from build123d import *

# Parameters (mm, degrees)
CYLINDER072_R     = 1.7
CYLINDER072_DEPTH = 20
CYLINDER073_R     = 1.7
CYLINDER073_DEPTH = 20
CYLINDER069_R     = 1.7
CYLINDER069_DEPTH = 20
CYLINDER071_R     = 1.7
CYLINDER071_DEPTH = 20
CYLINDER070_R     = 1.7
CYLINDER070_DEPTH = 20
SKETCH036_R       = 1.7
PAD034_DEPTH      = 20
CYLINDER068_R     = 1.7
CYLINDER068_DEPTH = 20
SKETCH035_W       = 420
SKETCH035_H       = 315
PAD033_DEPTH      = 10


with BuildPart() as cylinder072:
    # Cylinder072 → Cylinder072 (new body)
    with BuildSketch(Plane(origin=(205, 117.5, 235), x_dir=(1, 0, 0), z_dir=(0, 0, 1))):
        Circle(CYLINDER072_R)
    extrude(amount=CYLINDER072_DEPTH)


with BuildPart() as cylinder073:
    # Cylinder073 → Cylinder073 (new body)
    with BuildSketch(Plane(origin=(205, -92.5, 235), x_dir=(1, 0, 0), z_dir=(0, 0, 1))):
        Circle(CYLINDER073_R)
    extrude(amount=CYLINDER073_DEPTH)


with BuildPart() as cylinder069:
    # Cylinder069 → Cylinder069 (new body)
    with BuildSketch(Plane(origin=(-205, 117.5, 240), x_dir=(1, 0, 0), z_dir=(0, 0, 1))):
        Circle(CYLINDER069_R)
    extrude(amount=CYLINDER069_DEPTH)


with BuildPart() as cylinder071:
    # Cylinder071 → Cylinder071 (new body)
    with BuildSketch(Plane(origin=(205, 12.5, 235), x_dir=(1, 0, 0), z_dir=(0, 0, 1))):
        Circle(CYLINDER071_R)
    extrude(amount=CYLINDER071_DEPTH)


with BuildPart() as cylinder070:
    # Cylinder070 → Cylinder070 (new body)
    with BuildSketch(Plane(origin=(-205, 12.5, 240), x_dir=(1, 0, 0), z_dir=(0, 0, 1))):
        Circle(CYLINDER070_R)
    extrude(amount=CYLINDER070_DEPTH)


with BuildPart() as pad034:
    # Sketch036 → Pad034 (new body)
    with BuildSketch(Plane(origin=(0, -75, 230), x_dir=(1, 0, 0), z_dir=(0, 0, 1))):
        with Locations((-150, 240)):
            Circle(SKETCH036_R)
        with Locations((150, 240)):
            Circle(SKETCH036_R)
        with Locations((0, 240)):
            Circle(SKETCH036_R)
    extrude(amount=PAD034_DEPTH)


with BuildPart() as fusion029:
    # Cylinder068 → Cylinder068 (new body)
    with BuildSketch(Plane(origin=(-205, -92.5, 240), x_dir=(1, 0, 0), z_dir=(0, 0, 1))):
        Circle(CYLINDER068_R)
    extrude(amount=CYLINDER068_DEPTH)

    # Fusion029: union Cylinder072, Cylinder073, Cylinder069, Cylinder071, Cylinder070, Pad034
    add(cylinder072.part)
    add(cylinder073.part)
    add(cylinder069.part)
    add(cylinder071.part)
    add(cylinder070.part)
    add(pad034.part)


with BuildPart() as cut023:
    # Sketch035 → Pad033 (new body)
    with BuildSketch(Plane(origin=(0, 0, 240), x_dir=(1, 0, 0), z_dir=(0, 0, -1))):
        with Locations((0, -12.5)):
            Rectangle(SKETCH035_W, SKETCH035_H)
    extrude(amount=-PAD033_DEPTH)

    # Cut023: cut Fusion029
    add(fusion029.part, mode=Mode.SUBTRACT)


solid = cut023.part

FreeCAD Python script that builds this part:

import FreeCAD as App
import Part
import Sketcher
from FreeCAD import Vector
Q = App.Units.Quantity

doc = App.newDocument("Part")
body = doc.addObject("PartDesign::Body", "Body")

# Sketch on XY plane
sketch1 = body.newObject("Sketcher::SketchObject", "Sketch")
sketch1.AttachmentSupport = (doc.getObject("XY_Plane"), [""])
sketch1.MapMode = "FlatFace"
sketch1.AttachmentOffset = App.Placement(Vector(0, 0, 235), App.Rotation())
sketch1.addGeometry(Part.Circle(Vector(205, 117.5, 0), Vector(0, 0, 1), 1.7), False)
sketch1.addConstraint([
    Sketcher.Constraint("Diameter", 0, Q("3.4 mm")),
    Sketcher.Constraint("DistanceX", -1, 1, 0, 3, Q("205 mm")),
    Sketcher.Constraint("DistanceY", -1, 1, 0, 3, Q("117.5 mm")),
])
pad1 = body.newObject("PartDesign::Pad", "Pad")
pad1.Profile = sketch1
pad1.Length = 20
body2 = doc.addObject("PartDesign::Body", "Body001")

# Sketch on XY plane
sketch2 = body2.newObject("Sketcher::SketchObject", "Sketch001")
sketch2.AttachmentSupport = (doc.getObject("XY_Plane001"), [""])
sketch2.MapMode = "FlatFace"
sketch2.AttachmentOffset = App.Placement(Vector(0, 0, 235), App.Rotation())
sketch2.addGeometry(Part.Circle(Vector(205, -92.5, 0), Vector(0, 0, 1), 1.7), False)
sketch2.addConstraint([
    Sketcher.Constraint("Diameter", 0, Q("3.4 mm")),
    Sketcher.Constraint("DistanceX", -1, 1, 0, 3, Q("205 mm")),
    Sketcher.Constraint("DistanceY", 0, 3, -1, 1, Q("92.5 mm")),
])
pad2 = body2.newObject("PartDesign::Pad", "Pad001")
pad2.Profile = sketch2
pad2.Length = 20
body3 = doc.addObject("PartDesign::Body", "Body002")

# Sketch on XY plane
sketch3 = body3.newObject("Sketcher::SketchObject", "Sketch002")
sketch3.AttachmentSupport = (doc.getObject("XY_Plane002"), [""])
sketch3.MapMode = "FlatFace"
sketch3.AttachmentOffset = App.Placement(Vector(0, 0, 240), App.Rotation())
sketch3.addGeometry(Part.Circle(Vector(-205, 117.5, 0), Vector(0, 0, 1), 1.7), False)
sketch3.addConstraint([
    Sketcher.Constraint("Diameter", 0, Q("3.4 mm")),
    Sketcher.Constraint("DistanceX", 0, 3, -1, 1, Q("205 mm")),
    Sketcher.Constraint("DistanceY", -1, 1, 0, 3, Q("117.5 mm")),
])
pad3 = body3.newObject("PartDesign::Pad", "Pad002")
pad3.Profile = sketch3
pad3.Length = 20
body4 = doc.addObject("PartDesign::Body", "Body003")

# Sketch on XY plane
sketch4 = body4.newObject("Sketcher::SketchObject", "Sketch003")
sketch4.AttachmentSupport = (doc.getObject("XY_Plane003"), [""])
sketch4.MapMode = "FlatFace"
sketch4.AttachmentOffset = App.Placement(Vector(0, 0, 235), App.Rotation())
sketch4.addGeometry(Part.Circle(Vector(205, 12.5, 0), Vector(0, 0, 1), 1.7), False)
sketch4.addConstraint([
    Sketcher.Constraint("Diameter", 0, Q("3.4 mm")),
    Sketcher.Constraint("DistanceX", -1, 1, 0, 3, Q("205 mm")),
    Sketcher.Constraint("DistanceY", -1, 1, 0, 3, Q("12.5 mm")),
])
pad4 = body4.newObject("PartDesign::Pad", "Pad003")
pad4.Profile = sketch4
pad4.Length = 20
body5 = doc.addObject("PartDesign::Body", "Body004")

# Sketch on XY plane
sketch5 = body5.newObject("Sketcher::SketchObject", "Sketch004")
sketch5.AttachmentSupport = (doc.getObject("XY_Plane004"), [""])
sketch5.MapMode = "FlatFace"
sketch5.AttachmentOffset = App.Placement(Vector(0, 0, 240), App.Rotation())
sketch5.addGeometry(Part.Circle(Vector(-205, 12.5, 0), Vector(0, 0, 1), 1.7), False)
sketch5.addConstraint([
    Sketcher.Constraint("Diameter", 0, Q("3.4 mm")),
    Sketcher.Constraint("DistanceX", 0, 3, -1, 1, Q("205 mm")),
    Sketcher.Constraint("DistanceY", -1, 1, 0, 3, Q("12.5 mm")),
])
pad5 = body5.newObject("PartDesign::Pad", "Pad004")
pad5.Profile = sketch5
pad5.Length = 20
body6 = doc.addObject("PartDesign::Body", "Body005")
body6.AllowCompound = True

# Sketch on XY plane
sketch6 = body6.newObject("Sketcher::SketchObject", "Sketch005")
sketch6.AttachmentSupport = (doc.getObject("XY_Plane005"), [""])
sketch6.MapMode = "FlatFace"
sketch6.AttachmentOffset = App.Placement(Vector(0, 0, 230), App.Rotation())
sketch6.addGeometry([
    Part.Circle(Vector(-150, 165, 0), Vector(0, 0, 1), 1.7),
    Part.Circle(Vector(150, 165, 0), Vector(0, 0, 1), 1.7),
    Part.Circle(Vector(0, 165, 0), Vector(0, 0, 1), 1.7),
], False)
sketch6.addConstraint([
    Sketcher.Constraint("Equal", 0, 1),
    Sketcher.Constraint("Equal", 1, 2),
    Sketcher.Constraint("Symmetric", 0, 3, 1, 3, -2),
    Sketcher.Constraint("PointOnObject", 2, 3, -2),
    Sketcher.Constraint("Horizontal", 1, 3, 2, 3),
    Sketcher.Constraint("Diameter", 0, Q("3.4 mm")),
    Sketcher.Constraint("DistanceX", 0, 3, -1, 1, Q("150 mm")),
    Sketcher.Constraint("DistanceY", -1, 1, 0, 3, Q("165 mm")),
])
pad6 = body6.newObject("PartDesign::Pad", "Pad005")
pad6.Profile = sketch6
pad6.Length = 20
body7 = doc.addObject("PartDesign::Body", "Body006")
body7.AllowCompound = True

# Sketch on XY plane
sketch7 = body7.newObject("Sketcher::SketchObject", "Sketch006")
sketch7.AttachmentSupport = (doc.getObject("XY_Plane006"), [""])
sketch7.MapMode = "FlatFace"
sketch7.AttachmentOffset = App.Placement(Vector(0, 0, 240), App.Rotation())
sketch7.addGeometry(Part.Circle(Vector(-205, -92.5, 0), Vector(0, 0, 1), 1.7), False)
sketch7.addConstraint([
    Sketcher.Constraint("Diameter", 0, Q("3.4 mm")),
    Sketcher.Constraint("DistanceX", 0, 3, -1, 1, Q("205 mm")),
    Sketcher.Constraint("DistanceY", 0, 3, -1, 1, Q("92.5 mm")),
])
pad7 = body7.newObject("PartDesign::Pad", "Pad006")
pad7.Profile = sketch7
pad7.Length = 20
doc.recompute()

boolean = body7.newObject("PartDesign::Boolean", "Boolean")
boolean.Type = "Fuse"
boolean.addObjects([body])
doc.recompute()

boolean2 = body7.newObject("PartDesign::Boolean", "Boolean001")
boolean2.Type = "Fuse"
boolean2.addObjects([body2])
doc.recompute()

boolean3 = body7.newObject("PartDesign::Boolean", "Boolean002")
boolean3.Type = "Fuse"
boolean3.addObjects([body3])
doc.recompute()

boolean4 = body7.newObject("PartDesign::Boolean", "Boolean003")
boolean4.Type = "Fuse"
boolean4.addObjects([body4])
doc.recompute()

boolean5 = body7.newObject("PartDesign::Boolean", "Boolean004")
boolean5.Type = "Fuse"
boolean5.addObjects([body5])
doc.recompute()

boolean6 = body7.newObject("PartDesign::Boolean", "Boolean005")
boolean6.Type = "Fuse"
boolean6.addObjects([body6])
body8 = doc.addObject("PartDesign::Body", "Body007")

# Sketch on XY plane
sketch8 = body8.newObject("Sketcher::SketchObject", "Sketch007")
sketch8.AttachmentSupport = (doc.getObject("XY_Plane007"), [""])
sketch8.MapMode = "FlatFace"
sketch8.AttachmentOffset = App.Placement(Vector(0, 0, 240), App.Rotation())
sketch8.addGeometry([
    Part.LineSegment(Vector(-210, -145, 0), Vector(-210, 170, 0)),
    Part.LineSegment(Vector(-210, 170, 0), Vector(210, 170, 0)),
    Part.LineSegment(Vector(210, 170, 0), Vector(210, -145, 0)),
    Part.LineSegment(Vector(210, -145, 0), Vector(-210, -145, 0)),
], False)
sketch8.addConstraint([
    Sketcher.Constraint("Coincident", 0, 2, 1, 1),
    Sketcher.Constraint("Coincident", 1, 2, 2, 1),
    Sketcher.Constraint("Coincident", 2, 2, 3, 1),
    Sketcher.Constraint("Coincident", 3, 2, 0, 1),
    Sketcher.Constraint("Vertical", 0),
    Sketcher.Constraint("Horizontal", 1),
    Sketcher.Constraint("Vertical", 2),
    Sketcher.Constraint("Horizontal", 3),
    Sketcher.Constraint("DistanceX", 1, 1, 1, 2, Q("420 mm")),
    Sketcher.Constraint("DistanceY", 0, 1, 0, 2, Q("315 mm")),
    Sketcher.Constraint("DistanceX", 0, 2, -1, 1, Q("210 mm")),
    Sketcher.Constraint("DistanceY", -1, 1, 0, 2, Q("170 mm")),
])
pad8 = body8.newObject("PartDesign::Pad", "Pad007")
pad8.Profile = sketch8
pad8.Length = 10
doc.recompute()

boolean7 = body8.newObject("PartDesign::Boolean", "Boolean006")
boolean7.Type = "Cut"
boolean7.addObjects([body7])

doc.recompute()
